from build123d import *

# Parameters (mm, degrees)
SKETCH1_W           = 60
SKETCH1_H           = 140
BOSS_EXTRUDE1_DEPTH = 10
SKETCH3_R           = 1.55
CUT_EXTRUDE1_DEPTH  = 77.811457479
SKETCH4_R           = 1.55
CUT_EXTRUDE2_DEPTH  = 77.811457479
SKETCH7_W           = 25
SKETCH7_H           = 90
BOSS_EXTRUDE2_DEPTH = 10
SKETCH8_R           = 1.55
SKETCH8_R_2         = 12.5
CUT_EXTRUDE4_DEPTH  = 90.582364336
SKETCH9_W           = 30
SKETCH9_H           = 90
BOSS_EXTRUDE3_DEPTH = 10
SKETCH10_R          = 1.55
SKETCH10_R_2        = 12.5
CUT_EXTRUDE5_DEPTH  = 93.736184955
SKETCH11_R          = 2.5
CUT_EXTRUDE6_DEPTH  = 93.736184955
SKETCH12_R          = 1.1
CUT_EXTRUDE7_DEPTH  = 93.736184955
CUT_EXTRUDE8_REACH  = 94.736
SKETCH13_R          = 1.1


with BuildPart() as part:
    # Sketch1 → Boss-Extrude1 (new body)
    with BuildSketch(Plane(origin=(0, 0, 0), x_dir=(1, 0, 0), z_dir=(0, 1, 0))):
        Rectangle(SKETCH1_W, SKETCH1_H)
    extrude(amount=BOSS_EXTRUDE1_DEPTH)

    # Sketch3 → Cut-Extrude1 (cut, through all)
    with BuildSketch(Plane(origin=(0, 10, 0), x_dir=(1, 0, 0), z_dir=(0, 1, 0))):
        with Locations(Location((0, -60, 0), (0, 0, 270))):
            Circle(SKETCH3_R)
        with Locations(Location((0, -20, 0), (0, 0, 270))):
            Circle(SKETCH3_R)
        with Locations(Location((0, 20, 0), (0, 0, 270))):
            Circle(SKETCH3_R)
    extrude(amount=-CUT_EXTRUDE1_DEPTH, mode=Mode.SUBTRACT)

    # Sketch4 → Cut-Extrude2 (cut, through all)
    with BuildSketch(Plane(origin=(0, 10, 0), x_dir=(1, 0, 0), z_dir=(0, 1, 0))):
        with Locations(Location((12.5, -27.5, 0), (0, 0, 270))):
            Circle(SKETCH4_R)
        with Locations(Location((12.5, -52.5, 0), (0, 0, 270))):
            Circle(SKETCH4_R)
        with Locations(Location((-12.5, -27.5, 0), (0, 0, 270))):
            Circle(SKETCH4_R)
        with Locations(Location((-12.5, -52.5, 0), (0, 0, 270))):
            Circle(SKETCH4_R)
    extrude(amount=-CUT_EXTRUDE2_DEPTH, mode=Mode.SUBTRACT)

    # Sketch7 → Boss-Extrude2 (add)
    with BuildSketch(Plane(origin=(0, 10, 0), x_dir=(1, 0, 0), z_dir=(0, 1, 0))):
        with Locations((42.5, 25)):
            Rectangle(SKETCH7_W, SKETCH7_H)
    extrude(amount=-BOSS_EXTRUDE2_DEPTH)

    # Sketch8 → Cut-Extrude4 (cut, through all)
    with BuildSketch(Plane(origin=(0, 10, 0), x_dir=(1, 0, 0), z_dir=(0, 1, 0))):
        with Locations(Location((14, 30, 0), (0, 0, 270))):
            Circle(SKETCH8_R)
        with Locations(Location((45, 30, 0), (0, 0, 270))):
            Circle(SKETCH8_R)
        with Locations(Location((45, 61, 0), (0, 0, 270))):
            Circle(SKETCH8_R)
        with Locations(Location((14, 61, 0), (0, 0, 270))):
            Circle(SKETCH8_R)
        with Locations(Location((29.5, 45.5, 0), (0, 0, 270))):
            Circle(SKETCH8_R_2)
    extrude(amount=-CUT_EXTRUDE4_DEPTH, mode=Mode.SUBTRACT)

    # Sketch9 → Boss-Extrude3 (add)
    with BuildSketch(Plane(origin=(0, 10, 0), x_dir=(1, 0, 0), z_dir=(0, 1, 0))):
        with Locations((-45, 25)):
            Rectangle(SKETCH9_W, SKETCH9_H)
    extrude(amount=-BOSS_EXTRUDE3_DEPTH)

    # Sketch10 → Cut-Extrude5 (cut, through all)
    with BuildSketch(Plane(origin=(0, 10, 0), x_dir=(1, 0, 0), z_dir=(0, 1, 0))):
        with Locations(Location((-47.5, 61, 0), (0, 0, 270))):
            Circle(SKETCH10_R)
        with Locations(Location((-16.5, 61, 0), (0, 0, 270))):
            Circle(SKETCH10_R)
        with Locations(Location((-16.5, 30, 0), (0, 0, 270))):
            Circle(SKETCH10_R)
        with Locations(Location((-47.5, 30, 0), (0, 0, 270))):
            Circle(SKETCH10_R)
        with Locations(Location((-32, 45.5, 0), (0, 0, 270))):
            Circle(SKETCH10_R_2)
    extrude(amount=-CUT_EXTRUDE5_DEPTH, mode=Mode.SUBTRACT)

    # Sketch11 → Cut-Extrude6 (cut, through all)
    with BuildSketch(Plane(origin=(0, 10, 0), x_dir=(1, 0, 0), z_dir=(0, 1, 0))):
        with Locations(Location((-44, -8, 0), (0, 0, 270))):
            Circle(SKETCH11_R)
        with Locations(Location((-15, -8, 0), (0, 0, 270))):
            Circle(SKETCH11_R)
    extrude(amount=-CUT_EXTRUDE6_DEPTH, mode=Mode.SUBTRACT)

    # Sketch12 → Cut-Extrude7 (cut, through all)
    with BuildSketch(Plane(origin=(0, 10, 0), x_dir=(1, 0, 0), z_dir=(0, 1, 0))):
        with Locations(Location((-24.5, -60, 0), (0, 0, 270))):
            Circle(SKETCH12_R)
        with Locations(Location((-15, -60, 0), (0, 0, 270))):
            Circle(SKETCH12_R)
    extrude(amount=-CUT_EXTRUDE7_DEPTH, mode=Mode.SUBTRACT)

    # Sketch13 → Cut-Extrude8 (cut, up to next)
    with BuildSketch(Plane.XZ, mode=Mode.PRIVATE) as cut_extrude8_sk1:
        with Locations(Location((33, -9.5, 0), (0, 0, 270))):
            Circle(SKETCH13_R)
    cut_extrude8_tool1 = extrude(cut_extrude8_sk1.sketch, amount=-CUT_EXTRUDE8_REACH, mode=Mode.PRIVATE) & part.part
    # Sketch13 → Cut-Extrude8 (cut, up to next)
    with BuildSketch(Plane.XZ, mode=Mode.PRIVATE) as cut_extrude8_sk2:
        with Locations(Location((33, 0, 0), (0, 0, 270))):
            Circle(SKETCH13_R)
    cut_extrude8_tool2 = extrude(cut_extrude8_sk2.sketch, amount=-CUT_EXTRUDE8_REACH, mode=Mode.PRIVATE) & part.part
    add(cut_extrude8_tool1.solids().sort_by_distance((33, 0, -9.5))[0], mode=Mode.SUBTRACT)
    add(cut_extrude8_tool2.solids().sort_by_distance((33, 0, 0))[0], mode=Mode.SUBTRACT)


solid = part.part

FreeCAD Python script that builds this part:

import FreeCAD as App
import Part
import Sketcher
Q = App.Units.Quantity


def add_polygon(sketch, points):
    """Adds a closed chain of lines whose ends are joined by coincident constraints."""
    first, n = sketch.GeometryCount, len(points)
    for a, b in zip(points, points[1:] + points[:1]):
        sketch.addGeometry(Part.LineSegment(App.Vector(*a, 0), App.Vector(*b, 0)), False)
    for i in range(n):
        sketch.addConstraint(Sketcher.Constraint("Coincident", first + i, 2, first + (i + 1) % n, 1))

doc = App.newDocument("Part")
body = doc.addObject("PartDesign::Body", "Body")

sketch1 = body.newObject("Sketcher::SketchObject", "Sketch")
sketch1.AttachmentSupport = (doc.getObject("XZ_Plane"), [""])
sketch1.MapMode = "FlatFace"
add_polygon(sketch1, [(-30, -70), (-30, 70), (30, 70), (30, -70)])
sketch1.addConstraint([
    Sketcher.Constraint("Vertical", 0),
    Sketcher.Constraint("Horizontal", 1),
    Sketcher.Constraint("Vertical", 2),
    Sketcher.Constraint("Horizontal", 3),
    Sketcher.Constraint("Symmetric", 0, 2, 2, 2, -1, 1),
    Sketcher.Constraint("DistanceX", 1, 1, 1, 2, Q("60 mm")),
    Sketcher.Constraint("DistanceY", 0, 1, 0, 2, Q("140 mm")),
])
pad1 = body.newObject("PartDesign::Pad", "Pad")
pad1.Profile = sketch1
pad1.Length = 10
pad1.Reversed = True

sketch2 = body.newObject("Sketcher::SketchObject", "Sketch001")
sketch2.AttachmentSupport = (doc.getObject("XZ_Plane"), [""])
sketch2.MapMode = "FlatFace"
sketch2.AttachmentOffset = App.Placement(App.Vector(0, 0, -10), App.Rotation())
sketch2.addGeometry([
    Part.Circle(App.Vector(0, 60, 0), App.Vector(0, 0, 1), 1.6),
    Part.Circle(App.Vector(0, 20, 0), App.Vector(0, 0, 1), 1.6),
    Part.Circle(App.Vector(0, -20, 0), App.Vector(0, 0, 1), 1.6),
], False)
sketch2.addConstraint([
    Sketcher.Constraint("Equal", 0, 1),
    Sketcher.Constraint("Equal", 1, 2),
    Sketcher.Constraint("Symmetric", 1, 3, 2, 3, -1, 1),
    Sketcher.Constraint("PointOnObject", 0, 3, -2),
    Sketcher.Constraint("PointOnObject", 1, 3, -2),
    Sketcher.Constraint("Diameter", 0, Q("3.1 mm")),
    Sketcher.Constraint("DistanceY", -1, 1, 0, 3, Q("60 mm")),
    Sketcher.Constraint("DistanceY", -1, 1, 1, 3, Q("20 mm")),
])
pocket1 = body.newObject("PartDesign::Pocket", "Pocket")
pocket1.Profile = sketch2
pocket1.Type = "ThroughAll"
pocket1.Reversed = True

sketch3 = body.newObject("Sketcher::SketchObject", "Sketch002")
sketch3.AttachmentSupport = (doc.getObject("XZ_Plane"), [""])
sketch3.MapMode = "FlatFace"
sketch3.AttachmentOffset = App.Placement(App.Vector(0, 0, -10), App.Rotation())
sketch3.addGeometry([
    Part.Circle(App.Vector(12.5, 27.5, 0), App.Vector(0, 0, 1), 1.6),
    Part.Circle(App.Vector(12.5, 52.5, 0), App.Vector(0, 0, 1), 1.6),
    Part.Circle(App.Vector(-12.5, 27.5, 0), App.Vector(0, 0, 1), 1.6),
    Part.Circle(App.Vector(-12.5, 52.5, 0), App.Vector(0, 0, 1), 1.6),
], False)
sketch3.addConstraint([
    Sketcher.Constraint("Equal", 0, 1),
    Sketcher.Constraint("Equal", 1, 2),
    Sketcher.Constraint("Equal", 2, 3),
    Sketcher.Constraint("Symmetric", 0, 3, 2, 3, -2),
    Sketcher.Constraint("Symmetric", 1, 3, 3, 3, -2),
    Sketcher.Constraint("Vertical", 0, 3, 1, 3),
    Sketcher.Constraint("Diameter", 0, Q("3.1 mm")),
    Sketcher.Constraint("DistanceY", 0, 3, 1, 3, Q("25 mm")),
    Sketcher.Constraint("DistanceX", 2, 3, 0, 3, Q("25 mm")),
    Sketcher.Constraint("DistanceY", -1, 1, 0, 3, Q("27.5 mm")),
])
pocket2 = body.newObject("PartDesign::Pocket", "Pocket001")
pocket2.Profile = sketch3
pocket2.Type = "ThroughAll"
pocket2.Reversed = True

sketch4 = body.newObject("Sketcher::SketchObject", "Sketch003")
sketch4.AttachmentSupport = (doc.getObject("XZ_Plane"), [""])
sketch4.MapMode = "FlatFace"
sketch4.AttachmentOffset = App.Placement(App.Vector(0, 0, -10), App.Rotation())
add_polygon(sketch4, [(30, -70), (30, 20), (55, 20), (55, -70)])
sketch4.addConstraint([
    Sketcher.Constraint("Vertical", 0),
    Sketcher.Constraint("Horizontal", 1),
    Sketcher.Constraint("Vertical", 2),
    Sketcher.Constraint("Horizontal", 3),
    Sketcher.Constraint("DistanceX", 1, 1, 1, 2, Q("25 mm")),
    Sketcher.Constraint("DistanceY", 0, 1, 0, 2, Q("90 mm")),
    Sketcher.Constraint("DistanceX", -1, 1, 0, 2, Q("30 mm")),
    Sketcher.Constraint("DistanceY", -1, 1, 0, 2, Q("20 mm")),
])
pad2 = body.newObject("PartDesign::Pad", "Pad001")
pad2.Profile = sketch4
pad2.Length = 10

sketch5 = body.newObject("Sketcher::SketchObject", "Sketch004")
sketch5.AttachmentSupport = (doc.getObject("XZ_Plane"), [""])
sketch5.MapMode = "FlatFace"
sketch5.AttachmentOffset = App.Placement(App.Vector(0, 0, -10), App.Rotation())
sketch5.addGeometry([
    Part.Circle(App.Vector(14, -30, 0), App.Vector(0, 0, 1), 1.6),
    Part.Circle(App.Vector(45, -30, 0), App.Vector(0, 0, 1), 1.6),
    Part.Circle(App.Vector(45, -61, 0), App.Vector(0, 0, 1), 1.6),
    Part.Circle(App.Vector(14, -61, 0), App.Vector(0, 0, 1), 1.6),
    Part.Circle(App.Vector(29.5, -45.5, 0), App.Vector(0, 0, 1), 12.5),
], False)
sketch5.addConstraint([
    Sketcher.Constraint("Equal", 0, 1),
    Sketcher.Constraint("Equal", 1, 2),
    Sketcher.Constraint("Equal", 2, 3),
    Sketcher.Constraint("Horizontal", 0, 3, 1, 3),
    Sketcher.Constraint("Horizontal", 2, 3, 3, 3),
    Sketcher.Constraint("Vertical", 1, 3, 2, 3),
    Sketcher.Constraint("Vertical", 0, 3, 3, 3),
    Sketcher.Constraint("Diameter", 4, Q("25 mm")),
    Sketcher.Constraint("Diameter", 0, Q("3.1 mm")),
    Sketcher.Constraint("DistanceX", -1, 1, 0, 3, Q("14 mm")),
    Sketcher.Constraint("DistanceY", 0, 3, -1, 1, Q("30 mm")),
    Sketcher.Constraint("DistanceX", -1, 1, 1, 3, Q("45 mm")),
    Sketcher.Constraint("DistanceY", 2, 3, -1, 1, Q("61 mm")),
    Sketcher.Constraint("DistanceX", -1, 1, 4, 3, Q("29.5 mm")),
    Sketcher.Constraint("DistanceY", 4, 3, -1, 1, Q("45.5 mm")),
])
pocket3 = body.newObject("PartDesign::Pocket", "Pocket002")
pocket3.Profile = sketch5
pocket3.Type = "ThroughAll"
pocket3.Reversed = True

sketch6 = body.newObject("Sketcher::SketchObject", "Sketch005")
sketch6.AttachmentSupport = (doc.getObject("XZ_Plane"), [""])
sketch6.MapMode = "FlatFace"
sketch6.AttachmentOffset = App.Placement(App.Vector(0, 0, -10), App.Rotation())
add_polygon(sketch6, [(-60, -70), (-60, 20), (-30, 20), (-30, -70)])
sketch6.addConstraint([
    Sketcher.Constraint("Vertical", 0),
    Sketcher.Constraint("Horizontal", 1),
    Sketcher.Constraint("Vertical", 2),
    Sketcher.Constraint("Horizontal", 3),
    Sketcher.Constraint("DistanceX", 1, 1, 1, 2, Q("30 mm")),
    Sketcher.Constraint("DistanceY", 0, 1, 0, 2, Q("90 mm")),
    Sketcher.Constraint("DistanceX", 0, 2, -1, 1, Q("60 mm")),
    Sketcher.Constraint("DistanceY", -1, 1, 0, 2, Q("20 mm")),
])
pad3 = body.newObject("PartDesign::Pad", "Pad002")
pad3.Profile = sketch6
pad3.Length = 10

sketch7 = body.newObject("Sketcher::SketchObject", "Sketch006")
sketch7.AttachmentSupport = (doc.getObject("XZ_Plane"), [""])
sketch7.MapMode = "FlatFace"
sketch7.AttachmentOffset = App.Placement(App.Vector(0, 0, -10), App.Rotation())
sketch7.addGeometry([
    Part.Circle(App.Vector(-47.5, -61, 0), App.Vector(0, 0, 1), 1.6),
    Part.Circle(App.Vector(-16.5, -61, 0), App.Vector(0, 0, 1), 1.6),
    Part.Circle(App.Vector(-16.5, -30, 0), App.Vector(0, 0, 1), 1.6),
    Part.Circle(App.Vector(-47.5, -30, 0), App.Vector(0, 0, 1), 1.6),
    Part.Circle(App.Vector(-32, -45.5, 0), App.Vector(0, 0, 1), 12.5),
], False)
sketch7.addConstraint([
    Sketcher.Constraint("Equal", 0, 1),
    Sketcher.Constraint("Equal", 1, 2),
    Sketcher.Constraint("Equal", 2, 3),
    Sketcher.Constraint("Horizontal", 0, 3, 1, 3),
    Sketcher.Constraint("Horizontal", 2, 3, 3, 3),
    Sketcher.Constraint("Vertical", 1, 3, 2, 3),
    Sketcher.Constraint("Vertical", 0, 3, 3, 3),
    Sketcher.Constraint("Diameter", 4, Q("25 mm")),
    Sketcher.Constraint("Diameter", 0, Q("3.1 mm")),
    Sketcher.Constraint("DistanceY", 0, 3, -1, 1, Q("61 mm")),
    Sketcher.Constraint("DistanceY", 2, 3, -1, 1, Q("30 mm")),
    Sketcher.Constraint("DistanceX", 4, 3, -1, 1, Q("32 mm")),
    Sketcher.Constraint("DistanceX", 0, 3, 1, 3, Q("31 mm")),
    Sketcher.Constraint("DistanceX", 0, 3, -1, 1, Q("47.5 mm")),
    Sketcher.Constraint("DistanceY", 4, 3, -1, 1, Q("45.5 mm")),
])
pocket4 = body.newObject("PartDesign::Pocket", "Pocket003")
pocket4.Profile = sketch7
pocket4.Type = "ThroughAll"
pocket4.Reversed = True

sketch8 = body.newObject("Sketcher::SketchObject", "Sketch007")
sketch8.AttachmentSupport = (doc.getObject("XZ_Plane"), [""])
sketch8.MapMode = "FlatFace"
sketch8.AttachmentOffset = App.Placement(App.Vector(0, 0, -10), App.Rotation())
sketch8.addGeometry([
    Part.Circle(App.Vector(-44, 8, 0), App.Vector(0, 0, 1), 2.5),
    Part.Circle(App.Vector(-15, 8, 0), App.Vector(0, 0, 1), 2.5),
], False)
sketch8.addConstraint([
    Sketcher.Constraint("Equal", 0, 1),
    Sketcher.Constraint("Horizontal", 0, 3, 1, 3),
    Sketcher.Constraint("Diameter", 0, Q("5 mm")),
    Sketcher.Constraint("DistanceX", 0, 3, -1, 1, Q("44 mm")),
    Sketcher.Constraint("DistanceY", -1, 1, 0, 3, Q("8 mm")),
    Sketcher.Constraint("DistanceX", 1, 3, -1, 1, Q("15 mm")),
])
pocket5 = body.newObject("PartDesign::Pocket", "Pocket004")
pocket5.Profile = sketch8
pocket5.Type = "ThroughAll"
pocket5.Reversed = True

sketch9 = body.newObject("Sketcher::SketchObject", "Sketch008")
sketch9.AttachmentSupport = (doc.getObject("XZ_Plane"), [""])
sketch9.MapMode = "FlatFace"
sketch9.AttachmentOffset = App.Placement(App.Vector(0, 0, -10), App.Rotation())
sketch9.addGeometry([
    Part.Circle(App.Vector(-24.5, 60, 0), App.Vector(0, 0, 1), 1.1),
    Part.Circle(App.Vector(-15, 60, 0), App.Vector(0, 0, 1), 1.1),
], False)
sketch9.addConstraint([
    Sketcher.Constraint("Equal", 0, 1),
    Sketcher.Constraint("Horizontal", 0, 3, 1, 3),
    Sketcher.Constraint("Diameter", 0, Q("2.2 mm")),
    Sketcher.Constraint("DistanceY", -1, 1, 0, 3, Q("60 mm")),
    Sketcher.Constraint("DistanceX", 1, 3, -1, 1, Q("15 mm")),
    Sketcher.Constraint("DistanceX", 0, 3, -1, 1, Q("24.5 mm")),
])
pocket6 = body.newObject("PartDesign::Pocket", "Pocket005")
pocket6.Profile = sketch9
pocket6.Type = "ThroughAll"
pocket6.Reversed = True

sketch10 = body.newObject("Sketcher::SketchObject", "Sketch009")
sketch10.AttachmentSupport = (doc.getObject("XZ_Plane"), [""])
sketch10.MapMode = "FlatFace"
sketch10.addGeometry(Part.Circle(App.Vector(33, -9.5, 0), App.Vector(0, 0, 1), 1.1), False)
sketch10.addConstraint([
    Sketcher.Constraint("Diameter", 0, Q("2.2 mm")),
    Sketcher.Constraint("DistanceX", -1, 1, 0, 3, Q("33 mm")),
    Sketcher.Constraint("DistanceY", 0, 3, -1, 1, Q("9.5 mm")),
])
pocket7 = body.newObject("PartDesign::Pocket", "Pocket006")
pocket7.Profile = sketch10
pocket7.Type = "UpToFirst"

sketch11 = body.newObject("Sketcher::SketchObject", "Sketch010")
sketch11.AttachmentSupport = (doc.getObject("XZ_Plane"), [""])
sketch11.MapMode = "FlatFace"
sketch11.addGeometry(Part.Circle(App.Vector(33, 0, 0), App.Vector(0, 0, 1), 1.1), False)
sketch11.addConstraint([
    Sketcher.Constraint("PointOnObject", 0, 3, -1),
    Sketcher.Constraint("Diameter", 0, Q("2.2 mm")),
    Sketcher.Constraint("DistanceX", -1, 1, 0, 3, Q("33 mm")),
])
pocket8 = body.newObject("PartDesign::Pocket", "Pocket007")
pocket8.Profile = sketch11
pocket8.Type = "UpToFirst"

doc.recompute()
